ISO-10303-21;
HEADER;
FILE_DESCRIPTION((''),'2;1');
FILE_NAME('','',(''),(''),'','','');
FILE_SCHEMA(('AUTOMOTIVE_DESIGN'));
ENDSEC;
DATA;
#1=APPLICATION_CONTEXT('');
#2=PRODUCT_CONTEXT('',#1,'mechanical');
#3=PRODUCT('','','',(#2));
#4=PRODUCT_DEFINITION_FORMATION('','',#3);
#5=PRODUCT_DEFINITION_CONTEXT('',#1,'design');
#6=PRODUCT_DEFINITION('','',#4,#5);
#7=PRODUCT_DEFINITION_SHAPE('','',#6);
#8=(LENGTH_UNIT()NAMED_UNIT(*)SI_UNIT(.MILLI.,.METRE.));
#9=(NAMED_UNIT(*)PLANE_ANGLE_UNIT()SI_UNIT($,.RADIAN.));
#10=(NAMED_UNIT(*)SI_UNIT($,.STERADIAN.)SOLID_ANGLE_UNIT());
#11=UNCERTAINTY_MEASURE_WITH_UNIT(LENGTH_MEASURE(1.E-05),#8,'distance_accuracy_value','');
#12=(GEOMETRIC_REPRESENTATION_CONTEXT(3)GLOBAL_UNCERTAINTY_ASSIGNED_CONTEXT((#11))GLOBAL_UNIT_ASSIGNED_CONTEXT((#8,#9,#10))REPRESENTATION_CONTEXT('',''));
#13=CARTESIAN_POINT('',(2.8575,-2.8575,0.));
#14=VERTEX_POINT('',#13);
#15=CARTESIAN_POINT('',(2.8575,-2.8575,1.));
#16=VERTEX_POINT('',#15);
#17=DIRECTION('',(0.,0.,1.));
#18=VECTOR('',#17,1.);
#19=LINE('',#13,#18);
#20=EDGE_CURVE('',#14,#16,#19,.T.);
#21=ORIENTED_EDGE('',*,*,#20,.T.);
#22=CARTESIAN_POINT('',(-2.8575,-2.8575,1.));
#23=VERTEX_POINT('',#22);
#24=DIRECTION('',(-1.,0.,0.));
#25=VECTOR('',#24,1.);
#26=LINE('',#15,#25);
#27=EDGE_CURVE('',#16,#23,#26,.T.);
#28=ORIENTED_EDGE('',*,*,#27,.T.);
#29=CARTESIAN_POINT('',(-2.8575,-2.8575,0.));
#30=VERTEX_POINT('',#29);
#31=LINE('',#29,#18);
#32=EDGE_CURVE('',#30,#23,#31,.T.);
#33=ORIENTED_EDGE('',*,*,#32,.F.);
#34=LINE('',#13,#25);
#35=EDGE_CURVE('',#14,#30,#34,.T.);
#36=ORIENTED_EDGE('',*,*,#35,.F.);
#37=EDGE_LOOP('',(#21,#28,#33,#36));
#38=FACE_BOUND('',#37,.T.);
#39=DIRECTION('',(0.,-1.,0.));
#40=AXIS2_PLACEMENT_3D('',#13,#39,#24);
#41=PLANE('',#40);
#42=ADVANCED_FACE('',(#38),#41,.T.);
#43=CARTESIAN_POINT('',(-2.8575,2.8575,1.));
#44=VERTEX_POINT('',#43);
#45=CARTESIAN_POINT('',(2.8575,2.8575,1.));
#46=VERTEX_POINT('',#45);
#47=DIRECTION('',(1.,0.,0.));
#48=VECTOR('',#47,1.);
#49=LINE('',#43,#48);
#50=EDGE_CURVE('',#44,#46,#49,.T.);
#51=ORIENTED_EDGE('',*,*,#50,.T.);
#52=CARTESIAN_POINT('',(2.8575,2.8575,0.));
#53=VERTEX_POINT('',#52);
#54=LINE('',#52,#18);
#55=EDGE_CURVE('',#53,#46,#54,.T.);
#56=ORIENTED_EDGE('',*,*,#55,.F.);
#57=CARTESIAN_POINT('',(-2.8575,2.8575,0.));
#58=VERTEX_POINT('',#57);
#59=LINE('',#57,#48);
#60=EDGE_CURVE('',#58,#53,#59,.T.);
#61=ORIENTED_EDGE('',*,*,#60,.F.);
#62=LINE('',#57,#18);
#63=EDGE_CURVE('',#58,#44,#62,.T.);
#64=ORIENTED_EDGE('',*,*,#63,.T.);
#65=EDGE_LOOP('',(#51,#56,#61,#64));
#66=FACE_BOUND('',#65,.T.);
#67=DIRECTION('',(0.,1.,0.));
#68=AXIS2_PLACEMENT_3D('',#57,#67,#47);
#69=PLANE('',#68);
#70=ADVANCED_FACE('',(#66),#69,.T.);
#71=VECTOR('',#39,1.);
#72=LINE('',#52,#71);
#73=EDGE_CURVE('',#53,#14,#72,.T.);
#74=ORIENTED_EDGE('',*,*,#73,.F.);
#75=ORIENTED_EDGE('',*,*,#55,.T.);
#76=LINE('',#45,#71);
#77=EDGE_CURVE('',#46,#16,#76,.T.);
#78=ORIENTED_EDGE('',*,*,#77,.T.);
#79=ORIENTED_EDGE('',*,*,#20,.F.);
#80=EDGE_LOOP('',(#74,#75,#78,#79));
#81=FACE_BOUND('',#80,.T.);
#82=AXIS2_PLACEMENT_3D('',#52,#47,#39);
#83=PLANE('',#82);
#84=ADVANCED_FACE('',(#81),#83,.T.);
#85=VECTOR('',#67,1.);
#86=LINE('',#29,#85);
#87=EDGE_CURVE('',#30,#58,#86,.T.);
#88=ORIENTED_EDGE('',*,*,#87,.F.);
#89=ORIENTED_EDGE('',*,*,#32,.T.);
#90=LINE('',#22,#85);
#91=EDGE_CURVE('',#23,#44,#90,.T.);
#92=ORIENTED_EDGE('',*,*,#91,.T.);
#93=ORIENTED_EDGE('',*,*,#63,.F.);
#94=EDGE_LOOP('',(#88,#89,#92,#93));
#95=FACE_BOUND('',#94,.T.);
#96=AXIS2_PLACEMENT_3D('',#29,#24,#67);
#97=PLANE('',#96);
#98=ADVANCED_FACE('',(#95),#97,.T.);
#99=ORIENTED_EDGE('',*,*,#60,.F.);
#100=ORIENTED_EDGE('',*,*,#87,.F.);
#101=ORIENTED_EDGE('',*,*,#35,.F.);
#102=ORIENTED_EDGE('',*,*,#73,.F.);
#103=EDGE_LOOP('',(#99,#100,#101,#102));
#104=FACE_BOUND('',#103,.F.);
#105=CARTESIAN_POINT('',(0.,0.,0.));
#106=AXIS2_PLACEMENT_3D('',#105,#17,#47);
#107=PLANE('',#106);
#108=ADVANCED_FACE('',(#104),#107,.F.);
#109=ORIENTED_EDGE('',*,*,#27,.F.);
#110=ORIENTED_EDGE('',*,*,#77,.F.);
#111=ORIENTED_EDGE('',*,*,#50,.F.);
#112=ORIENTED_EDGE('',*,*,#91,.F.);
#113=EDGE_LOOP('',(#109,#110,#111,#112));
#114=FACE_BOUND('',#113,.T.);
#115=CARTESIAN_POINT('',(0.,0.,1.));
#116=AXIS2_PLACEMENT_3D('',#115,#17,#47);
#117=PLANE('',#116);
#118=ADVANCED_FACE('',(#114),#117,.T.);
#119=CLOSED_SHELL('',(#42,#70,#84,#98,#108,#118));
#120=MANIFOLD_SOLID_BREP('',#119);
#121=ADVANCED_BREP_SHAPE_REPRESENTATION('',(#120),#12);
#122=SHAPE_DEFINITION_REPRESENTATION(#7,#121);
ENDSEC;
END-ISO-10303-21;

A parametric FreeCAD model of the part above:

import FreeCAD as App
import Part
import Sketcher
from FreeCAD import Vector

doc = App.newDocument("Part")
body = doc.addObject("PartDesign::Body", "Body")

# Sketch on XY plane
sketch1 = doc.addObject("Sketcher::SketchObject", "Sketch")
body.addObject(sketch1)
sketch1.AttachmentSupport = (doc.XY_Plane, [""])
sketch1.MapMode = "FlatFace"
sketch1.addGeometry(Part.LineSegment(Vector(3, 3, 0), Vector(-3, 3, 0)), False)
sketch1.addGeometry(Part.LineSegment(Vector(-3, 3, 0), Vector(-3, -3, 0)), False)
sketch1.addGeometry(Part.LineSegment(Vector(-3, -3, 0), Vector(3, -3, 0)), False)
sketch1.addGeometry(Part.LineSegment(Vector(3, -3, 0), Vector(3, 3, 0)), False)
sketch1.addConstraint(Sketcher.Constraint("Coincident", 0, 2, 1, 1))
sketch1.addConstraint(Sketcher.Constraint("Coincident", 1, 2, 2, 1))
sketch1.addConstraint(Sketcher.Constraint("Coincident", 2, 2, 3, 1))
sketch1.addConstraint(Sketcher.Constraint("Coincident", 3, 2, 0, 1))
sketch1.addConstraint(Sketcher.Constraint("Horizontal", 0))
sketch1.addConstraint(Sketcher.Constraint("Vertical", 1))
sketch1.addConstraint(Sketcher.Constraint("Horizontal", 2))
sketch1.addConstraint(Sketcher.Constraint("Vertical", 3))
sketch1.addConstraint(Sketcher.Constraint("Symmetric", 0, 2, 2, 2, -1, 1))
sketch1.addConstraint(Sketcher.Constraint("Equal", 2, 1))
sketch1.addConstraint(Sketcher.Constraint("DistanceX", 0, 2, 0, 1, 5.715))
pad1 = doc.addObject("PartDesign::Pad", "Pad")
body.addObject(pad1)
pad1.Profile = sketch1
pad1.Length = 1

doc.recompute()
